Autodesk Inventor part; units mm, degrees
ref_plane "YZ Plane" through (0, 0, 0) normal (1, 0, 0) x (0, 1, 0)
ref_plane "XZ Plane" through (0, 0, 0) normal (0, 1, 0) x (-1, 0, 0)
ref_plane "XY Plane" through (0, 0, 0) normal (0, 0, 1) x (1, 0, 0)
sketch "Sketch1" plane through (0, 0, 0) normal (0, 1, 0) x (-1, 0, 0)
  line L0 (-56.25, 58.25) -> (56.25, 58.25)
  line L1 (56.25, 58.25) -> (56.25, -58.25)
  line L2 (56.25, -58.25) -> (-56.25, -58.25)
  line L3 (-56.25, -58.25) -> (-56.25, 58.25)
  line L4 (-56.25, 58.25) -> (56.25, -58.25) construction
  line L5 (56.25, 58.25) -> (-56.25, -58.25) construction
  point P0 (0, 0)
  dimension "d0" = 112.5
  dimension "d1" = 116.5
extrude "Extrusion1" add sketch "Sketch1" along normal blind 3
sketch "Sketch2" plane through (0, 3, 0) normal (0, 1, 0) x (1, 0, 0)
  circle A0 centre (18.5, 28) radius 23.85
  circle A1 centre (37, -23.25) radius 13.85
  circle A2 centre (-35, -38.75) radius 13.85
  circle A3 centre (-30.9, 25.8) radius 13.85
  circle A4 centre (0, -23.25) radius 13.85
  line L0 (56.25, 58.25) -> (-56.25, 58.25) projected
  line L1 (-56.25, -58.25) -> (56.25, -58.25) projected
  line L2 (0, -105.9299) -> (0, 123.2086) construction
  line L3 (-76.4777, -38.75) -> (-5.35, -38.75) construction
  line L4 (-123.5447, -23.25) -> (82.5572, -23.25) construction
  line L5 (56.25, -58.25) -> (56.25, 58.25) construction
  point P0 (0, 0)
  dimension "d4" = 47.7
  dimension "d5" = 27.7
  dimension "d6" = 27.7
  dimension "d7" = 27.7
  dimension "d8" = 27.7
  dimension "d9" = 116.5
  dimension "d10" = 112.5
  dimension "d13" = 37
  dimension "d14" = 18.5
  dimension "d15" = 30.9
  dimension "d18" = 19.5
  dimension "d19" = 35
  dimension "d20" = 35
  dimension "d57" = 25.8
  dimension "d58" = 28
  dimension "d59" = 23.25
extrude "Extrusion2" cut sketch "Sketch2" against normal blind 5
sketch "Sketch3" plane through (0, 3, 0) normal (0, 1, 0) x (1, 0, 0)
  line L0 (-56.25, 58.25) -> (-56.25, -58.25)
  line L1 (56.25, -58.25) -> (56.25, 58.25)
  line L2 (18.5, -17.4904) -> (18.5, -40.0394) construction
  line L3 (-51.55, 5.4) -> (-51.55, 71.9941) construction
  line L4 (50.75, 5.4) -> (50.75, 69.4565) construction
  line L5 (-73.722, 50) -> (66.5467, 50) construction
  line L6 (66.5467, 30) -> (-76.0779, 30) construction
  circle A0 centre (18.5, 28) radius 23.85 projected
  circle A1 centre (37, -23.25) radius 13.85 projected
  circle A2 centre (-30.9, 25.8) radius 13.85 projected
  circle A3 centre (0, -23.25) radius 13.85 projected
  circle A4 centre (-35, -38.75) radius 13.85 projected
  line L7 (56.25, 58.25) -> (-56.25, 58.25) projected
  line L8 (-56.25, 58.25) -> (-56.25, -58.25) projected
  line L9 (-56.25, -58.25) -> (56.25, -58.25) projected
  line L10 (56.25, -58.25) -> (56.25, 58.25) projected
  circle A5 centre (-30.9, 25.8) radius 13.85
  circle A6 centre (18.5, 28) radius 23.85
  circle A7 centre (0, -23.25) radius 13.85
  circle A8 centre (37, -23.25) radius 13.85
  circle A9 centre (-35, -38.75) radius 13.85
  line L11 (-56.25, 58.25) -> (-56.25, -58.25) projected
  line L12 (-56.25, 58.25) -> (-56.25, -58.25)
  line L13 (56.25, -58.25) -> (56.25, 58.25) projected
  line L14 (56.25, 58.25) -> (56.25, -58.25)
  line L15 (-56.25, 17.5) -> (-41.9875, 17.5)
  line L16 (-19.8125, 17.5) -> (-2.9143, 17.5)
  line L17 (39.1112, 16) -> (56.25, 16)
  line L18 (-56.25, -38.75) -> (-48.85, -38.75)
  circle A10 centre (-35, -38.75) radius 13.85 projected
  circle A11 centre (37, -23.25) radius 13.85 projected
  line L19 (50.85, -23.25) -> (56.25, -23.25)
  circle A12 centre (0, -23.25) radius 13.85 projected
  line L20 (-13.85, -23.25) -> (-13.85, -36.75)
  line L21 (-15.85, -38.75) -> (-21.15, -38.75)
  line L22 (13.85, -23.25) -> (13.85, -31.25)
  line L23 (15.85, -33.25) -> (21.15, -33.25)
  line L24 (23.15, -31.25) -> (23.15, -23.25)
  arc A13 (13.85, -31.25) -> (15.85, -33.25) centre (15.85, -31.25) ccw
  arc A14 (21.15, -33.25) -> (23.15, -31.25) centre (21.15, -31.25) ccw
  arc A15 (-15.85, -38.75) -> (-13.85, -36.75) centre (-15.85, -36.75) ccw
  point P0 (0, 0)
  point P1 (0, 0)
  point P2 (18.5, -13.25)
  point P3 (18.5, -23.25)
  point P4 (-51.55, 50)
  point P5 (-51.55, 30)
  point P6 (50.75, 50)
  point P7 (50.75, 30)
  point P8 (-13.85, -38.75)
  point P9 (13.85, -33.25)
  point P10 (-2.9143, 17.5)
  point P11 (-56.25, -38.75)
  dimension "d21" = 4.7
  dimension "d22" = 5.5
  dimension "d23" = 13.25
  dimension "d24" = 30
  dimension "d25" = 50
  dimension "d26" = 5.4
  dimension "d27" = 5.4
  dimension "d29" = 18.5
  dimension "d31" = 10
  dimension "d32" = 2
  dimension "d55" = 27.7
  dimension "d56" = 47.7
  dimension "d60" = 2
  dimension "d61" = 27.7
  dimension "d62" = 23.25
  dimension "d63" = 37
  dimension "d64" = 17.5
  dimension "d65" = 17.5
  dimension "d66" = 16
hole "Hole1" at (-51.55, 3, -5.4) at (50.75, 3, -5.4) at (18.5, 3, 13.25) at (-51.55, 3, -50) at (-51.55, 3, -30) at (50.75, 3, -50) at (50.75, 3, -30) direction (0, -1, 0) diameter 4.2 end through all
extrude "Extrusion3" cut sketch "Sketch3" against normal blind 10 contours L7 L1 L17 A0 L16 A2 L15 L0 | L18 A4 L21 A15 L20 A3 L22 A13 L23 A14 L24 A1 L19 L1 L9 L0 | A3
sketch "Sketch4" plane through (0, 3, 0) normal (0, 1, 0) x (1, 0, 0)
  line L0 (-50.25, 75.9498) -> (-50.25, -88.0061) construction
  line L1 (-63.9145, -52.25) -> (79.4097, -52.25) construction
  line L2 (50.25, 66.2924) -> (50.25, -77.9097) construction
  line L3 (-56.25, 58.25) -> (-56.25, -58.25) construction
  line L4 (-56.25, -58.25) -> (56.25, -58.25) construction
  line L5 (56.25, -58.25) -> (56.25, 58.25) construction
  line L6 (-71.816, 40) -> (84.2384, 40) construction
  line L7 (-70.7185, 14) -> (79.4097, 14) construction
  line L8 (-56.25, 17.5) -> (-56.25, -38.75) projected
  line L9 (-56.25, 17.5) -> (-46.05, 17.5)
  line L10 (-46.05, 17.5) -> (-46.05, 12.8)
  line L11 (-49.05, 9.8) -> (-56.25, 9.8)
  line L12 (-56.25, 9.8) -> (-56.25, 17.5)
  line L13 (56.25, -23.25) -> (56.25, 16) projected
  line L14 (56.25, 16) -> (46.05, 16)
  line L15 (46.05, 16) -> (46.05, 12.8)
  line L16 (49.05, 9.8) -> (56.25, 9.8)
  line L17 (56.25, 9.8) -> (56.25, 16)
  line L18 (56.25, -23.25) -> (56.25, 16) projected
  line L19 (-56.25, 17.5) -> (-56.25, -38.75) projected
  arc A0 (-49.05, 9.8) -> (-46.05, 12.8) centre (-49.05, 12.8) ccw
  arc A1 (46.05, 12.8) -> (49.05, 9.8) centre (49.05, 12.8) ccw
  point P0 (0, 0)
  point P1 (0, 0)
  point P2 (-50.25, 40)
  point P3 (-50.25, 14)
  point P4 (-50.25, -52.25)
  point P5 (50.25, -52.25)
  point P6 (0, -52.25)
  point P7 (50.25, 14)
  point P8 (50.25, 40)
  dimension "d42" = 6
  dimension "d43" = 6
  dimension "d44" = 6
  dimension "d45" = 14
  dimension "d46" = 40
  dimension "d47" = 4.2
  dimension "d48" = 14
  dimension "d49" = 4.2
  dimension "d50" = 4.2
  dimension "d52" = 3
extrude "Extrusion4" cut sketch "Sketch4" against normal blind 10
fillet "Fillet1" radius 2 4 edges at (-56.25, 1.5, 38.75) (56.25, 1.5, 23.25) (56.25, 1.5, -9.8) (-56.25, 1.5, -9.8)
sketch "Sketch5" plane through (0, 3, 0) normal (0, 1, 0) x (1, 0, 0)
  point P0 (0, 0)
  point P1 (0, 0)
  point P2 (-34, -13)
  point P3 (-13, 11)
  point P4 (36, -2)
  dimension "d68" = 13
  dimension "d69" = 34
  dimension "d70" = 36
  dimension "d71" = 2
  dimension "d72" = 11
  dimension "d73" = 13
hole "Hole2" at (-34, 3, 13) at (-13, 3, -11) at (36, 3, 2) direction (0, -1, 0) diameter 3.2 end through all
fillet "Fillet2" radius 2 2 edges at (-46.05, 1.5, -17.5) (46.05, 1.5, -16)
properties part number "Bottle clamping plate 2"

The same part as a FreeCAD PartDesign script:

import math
import FreeCAD as App
import Part
import Sketcher
from FreeCAD import Vector
Q = App.Units.Quantity


def edges_at(feature, points):
    """Names of the edges that pass closest to the given points."""
    edges = feature.Shape.Edges
    near = lambda p: min(range(len(edges)), key=lambda i: edges[i].distToShape(Part.Vertex(*p))[0])
    return sorted({f"Edge{near(p) + 1}" for p in points})

doc = App.newDocument("Part")
params = doc.addObject("Spreadsheet::Sheet", "Params")
for row, (alias, value) in enumerate([
    ("sketch1_width", "112.5 mm"),
    ("sketch1_height", "116.5 mm"),
    ("pad1_length", "3 mm"),
    ("sketch2_diameter", "47.7 mm"),
    ("sketch2_diameter2", "27.7 mm"),
    ("pocket1_length", "5 mm"),
    ("sketch3_diameter", "4.2 mm"),
    ("hole_diameter", "4.2 mm"),
    ("sketch4_radius", "2 mm"),
    ("sketch4_radius2", "13.85 mm"),
    ("sketch4_radius3", "23.85 mm"),
    ("sketch4_width", "5.4 mm"),
    ("sketch4_height", "35 mm"),
    ("pocket2_length", "10 mm"),
    ("sketch5_radius", "3 mm"),
    ("sketch5_width", "10.2 mm"),
    ("sketch5_height", "7.7 mm"),
    ("sketch5_height2", "6.2 mm"),
    ("pocket3_length", "10 mm"),
    ("fillet_radius", "2 mm"),
    ("sketch6_diameter", "3.2 mm"),
    ("hole2_diameter", "3.2 mm"),
    ("fillet2_radius", "2 mm"),
], start=1):
    params.set(f"A{row}", alias)
    params.set(f"B{row}", "=" + value)
    params.setAlias(f"B{row}", alias)

body = doc.addObject("PartDesign::Body", "Body")

sketch1 = body.newObject("Sketcher::SketchObject", "Sketch")
sketch1.AttachmentSupport = (doc.getObject("XZ_Plane"), [""])
sketch1.MapMode = "FlatFace"
sketch1.addGeometry([
    Part.LineSegment(Vector(-56.25, 58.25, 0), Vector(56.25, 58.25, 0)),
    Part.LineSegment(Vector(56.25, 58.25, 0), Vector(56.25, -58.25, 0)),
    Part.LineSegment(Vector(56.25, -58.25, 0), Vector(-56.25, -58.25, 0)),
    Part.LineSegment(Vector(-56.25, -58.25, 0), Vector(-56.25, 58.25, 0)),
], False)
sketch1.addConstraint([
    Sketcher.Constraint("Coincident", 0, 2, 1, 1),
    Sketcher.Constraint("Coincident", 1, 2, 2, 1),
    Sketcher.Constraint("Coincident", 2, 2, 3, 1),
    Sketcher.Constraint("Coincident", 3, 2, 0, 1),
    Sketcher.Constraint("Horizontal", 0),
    Sketcher.Constraint("Vertical", 1),
    Sketcher.Constraint("Horizontal", 2),
    Sketcher.Constraint("Vertical", 3),
    Sketcher.Constraint("Symmetric", 0, 2, 2, 2, -1, 1),
    Sketcher.Constraint("DistanceX", 0, 1, 0, 2, Q("112.5 mm")),
    Sketcher.Constraint("DistanceY", 1, 2, 1, 1, Q("116.5 mm")),
])
sketch1.setExpression("Constraints[9]", "Params.sketch1_width")
sketch1.setExpression("Constraints[10]", "Params.sketch1_height")
pad1 = body.newObject("PartDesign::Pad", "Pad")
pad1.Profile = sketch1
pad1.setExpression("Length", "Params.pad1_length")
pad1.Reversed = True

sketch2 = body.newObject("Sketcher::SketchObject", "Sketch001")
sketch2.AttachmentSupport = (doc.getObject("XZ_Plane"), [""])
sketch2.MapMode = "FlatFace"
sketch2.AttachmentOffset = App.Placement(Vector(0, 0, -3), App.Rotation())
sketch2.addGeometry([
    Part.Circle(Vector(18.5, -28, 0), Vector(0, 0, 1), 23.85),
    Part.Circle(Vector(37, 23.25, 0), Vector(0, 0, 1), 13.85),
    Part.Circle(Vector(-35, 38.75, 0), Vector(0, 0, 1), 13.85),
    Part.Circle(Vector(-30.9, -25.8, 0), Vector(0, 0, 1), 13.85),
    Part.Circle(Vector(0, 23.25, 0), Vector(0, 0, 1), 13.85),
], False)
sketch2.addConstraint([
    Sketcher.Constraint("Equal", 1, 2),
    Sketcher.Constraint("Equal", 2, 3),
    Sketcher.Constraint("Equal", 3, 4),
    Sketcher.Constraint("PointOnObject", 4, 3, -2),
    Sketcher.Constraint("Horizontal", 1, 3, 4, 3),
    Sketcher.Constraint("Diameter", 0, Q("47.7 mm")),
    Sketcher.Constraint("Diameter", 1, Q("27.7 mm")),
    Sketcher.Constraint("DistanceY", 0, 3, -1, 1, Q("28 mm")),
    Sketcher.Constraint("DistanceX", -1, 1, 1, 3, Q("37 mm")),
    Sketcher.Constraint("DistanceX", 2, 3, -1, 1, Q("35 mm")),
    Sketcher.Constraint("DistanceX", -1, 1, 0, 3, Q("18.5 mm")),
    Sketcher.Constraint("DistanceX", 3, 3, -1, 1, Q("30.9 mm")),
    Sketcher.Constraint("DistanceY", 3, 3, -1, 1, Q("25.8 mm")),
    Sketcher.Constraint("DistanceY", -1, 1, 1, 3, Q("23.25 mm")),
    Sketcher.Constraint("DistanceY", 1, 3, 2, 3, Q("15.5 mm")),
])
sketch2.setExpression("Constraints[5]", "Params.sketch2_diameter")
sketch2.setExpression("Constraints[6]", "Params.sketch2_diameter2")
pocket1 = body.newObject("PartDesign::Pocket", "Pocket")
pocket1.Profile = sketch2
pocket1.setExpression("Length", "Params.pocket1_length")
pocket1.Reversed = True

sketch3 = body.newObject("Sketcher::SketchObject", "Sketch002")
sketch3.AttachmentSupport = (doc.getObject("XZ_Plane"), [""])
sketch3.MapMode = "FlatFace"
sketch3.AttachmentOffset = App.Placement(Vector(0, 0, -3), App.Rotation())
sketch3.addGeometry([
    Part.Circle(Vector(-51.55, -5.4, 0), Vector(0, 0, 1), 2.1),
    Part.Circle(Vector(50.75, -5.4, 0), Vector(0, 0, 1), 2.1),
    Part.Circle(Vector(18.5, 13.25, 0), Vector(0, 0, 1), 2.1),
    Part.Circle(Vector(-51.55, -50, 0), Vector(0, 0, 1), 2.1),
    Part.Circle(Vector(-51.55, -30, 0), Vector(0, 0, 1), 2.1),
    Part.Circle(Vector(50.75, -50, 0), Vector(0, 0, 1), 2.1),
    Part.Circle(Vector(50.75, -30, 0), Vector(0, 0, 1), 2.1),
], False)
sketch3.addConstraint([
    Sketcher.Constraint("Equal", 0, 1),
    Sketcher.Constraint("Equal", 1, 2),
    Sketcher.Constraint("Equal", 2, 3),
    Sketcher.Constraint("Equal", 3, 4),
    Sketcher.Constraint("Equal", 4, 5),
    Sketcher.Constraint("Equal", 5, 6),
    Sketcher.Constraint("Horizontal", 0, 3, 1, 3),
    Sketcher.Constraint("Horizontal", 3, 3, 5, 3),
    Sketcher.Constraint("Horizontal", 4, 3, 6, 3),
    Sketcher.Constraint("Vertical", 0, 3, 3, 3),
    Sketcher.Constraint("Vertical", 3, 3, 4, 3),
    Sketcher.Constraint("Vertical", 1, 3, 5, 3),
    Sketcher.Constraint("Vertical", 5, 3, 6, 3),
    Sketcher.Constraint("Diameter", 0, Q("4.2 mm")),
    Sketcher.Constraint("DistanceY", 3, 3, -1, 1, Q("50 mm")),
    Sketcher.Constraint("DistanceY", 4, 3, -1, 1, Q("30 mm")),
    Sketcher.Constraint("DistanceY", 0, 3, -1, 1, Q("5.4 mm")),
    Sketcher.Constraint("DistanceX", -1, 1, 2, 3, Q("18.5 mm")),
    Sketcher.Constraint("DistanceX", 0, 3, 1, 3, Q("102.3 mm")),
    Sketcher.Constraint("DistanceX", 0, 3, -1, 1, Q("51.55 mm")),
    Sketcher.Constraint("DistanceY", -1, 1, 2, 3, Q("13.25 mm")),
])
sketch3.setExpression("Constraints[13]", "Params.sketch3_diameter")
doc.recompute()
hole = body.newObject("PartDesign::Hole", "Hole")
hole.Profile = sketch3
hole.ThreadType = "None"
hole.setExpression("Diameter", "Params.hole_diameter")
hole.DepthType = "ThroughAll"
hole.Reversed = True

sketch4 = body.newObject("Sketcher::SketchObject", "Sketch003")
sketch4.AttachmentSupport = (doc.getObject("XZ_Plane"), [""])
sketch4.MapMode = "FlatFace"
sketch4.AttachmentOffset = App.Placement(Vector(0, 0, -3), App.Rotation())
sketch4.addGeometry([
    Part.LineSegment(Vector(56.25, -58.25, 0), Vector(-56.25, -58.25, 0)),
    Part.LineSegment(Vector(-56.25, -58.25, 0), Vector(-56.25, -17.5, 0)),
    Part.LineSegment(Vector(-56.25, -17.5, 0), Vector(-41.9875, -17.5, 0)),
    Part.ArcOfCircle(Part.Circle(Vector(-30.9, -25.8, 0), Vector(0, 0, 1), 13.85), math.radians(143.181813), math.radians(396.818187)),
    Part.LineSegment(Vector(-19.8125, -17.5, 0), Vector(-2.9143, -17.5, 0)),
    Part.ArcOfCircle(Part.Circle(Vector(18.5, -28, 0), Vector(0, 0, 1), 23.85), math.radians(153.88006), math.radians(390.208295)),
    Part.LineSegment(Vector(39.1112, -16, 0), Vector(56.25, -16, 0)),
    Part.LineSegment(Vector(56.25, -16, 0), Vector(56.25, -58.25, 0)),
    Part.LineSegment(Vector(-48.85, 38.75, 0), Vector(-56.25, 38.75, 0)),
    Part.LineSegment(Vector(-56.25, 38.75, 0), Vector(-56.25, 58.25, 0)),
    Part.LineSegment(Vector(-56.25, 58.25, 0), Vector(56.25, 58.25, 0)),
    Part.LineSegment(Vector(56.25, 58.25, 0), Vector(56.25, 23.25, 0)),
    Part.LineSegment(Vector(56.25, 23.25, 0), Vector(50.85, 23.25, 0)),
    Part.ArcOfCircle(Part.Circle(Vector(37, 23.25, 0), Vector(0, 0, 1), 13.85), math.radians(0), math.radians(180)),
    Part.LineSegment(Vector(23.15, 23.25, 0), Vector(23.15, 31.25, 0)),
    Part.ArcOfCircle(Part.Circle(Vector(21.15, 31.25, 0), Vector(0, 0, 1), 2), math.radians(0), math.radians(90)),
    Part.LineSegment(Vector(21.15, 33.25, 0), Vector(15.85, 33.25, 0)),
    Part.ArcOfCircle(Part.Circle(Vector(15.85, 31.25, 0), Vector(0, 0, 1), 2), math.radians(90), math.radians(180)),
    Part.LineSegment(Vector(13.85, 31.25, 0), Vector(13.85, 23.25, 0)),
    Part.ArcOfCircle(Part.Circle(Vector(0, 23.25, 0), Vector(0, 0, 1), 13.85), math.radians(180), math.radians(360)),
    Part.LineSegment(Vector(-13.85, 23.25, 0), Vector(-13.85, 36.75, 0)),
    Part.ArcOfCircle(Part.Circle(Vector(-15.85, 36.75, 0), Vector(0, 0, 1), 2), math.radians(0), math.radians(90)),
    Part.LineSegment(Vector(-15.85, 38.75, 0), Vector(-21.15, 38.75, 0)),
    Part.ArcOfCircle(Part.Circle(Vector(-35, 38.75, 0), Vector(0, 0, 1), 13.85), math.radians(0), math.radians(180)),
], False)
sketch4.addConstraint([
    Sketcher.Constraint("Coincident", 0, 2, 1, 1),
    Sketcher.Constraint("Coincident", 1, 2, 2, 1),
    Sketcher.Constraint("Coincident", 2, 2, 3, 1),
    Sketcher.Constraint("Coincident", 3, 2, 4, 1),
    Sketcher.Constraint("Coincident", 4, 2, 5, 1),
    Sketcher.Constraint("Coincident", 5, 2, 6, 1),
    Sketcher.Constraint("Coincident", 6, 2, 7, 1),
    Sketcher.Constraint("Coincident", 7, 2, 0, 1),
    Sketcher.Constraint("Coincident", 8, 2, 9, 1),
    Sketcher.Constraint("Coincident", 9, 2, 10, 1),
    Sketcher.Constraint("Coincident", 10, 2, 11, 1),
    Sketcher.Constraint("Coincident", 11, 2, 12, 1),
    Sketcher.Constraint("Coincident", 12, 2, 13, 1),
    Sketcher.Constraint("Tangent", 13, 2, 14, 1),
    Sketcher.Constraint("Tangent", 14, 2, 15, 1),
    Sketcher.Constraint("Tangent", 15, 2, 16, 1),
    Sketcher.Constraint("Tangent", 16, 2, 17, 1),
    Sketcher.Constraint("Tangent", 17, 2, 18, 1),
    Sketcher.Constraint("Tangent", 18, 2, 19, 2),
    Sketcher.Constraint("Tangent", 19, 1, 20, 1),
    Sketcher.Constraint("Tangent", 20, 2, 21, 1),
    Sketcher.Constraint("Tangent", 21, 2, 22, 1),
    Sketcher.Constraint("Coincident", 22, 2, 23, 1),
    Sketcher.Constraint("Coincident", 23, 2, 8, 1),
    Sketcher.Constraint("Horizontal", 0),
    Sketcher.Constraint("Vertical", 1),
    Sketcher.Constraint("Horizontal", 2),
    Sketcher.Constraint("Horizontal", 4),
    Sketcher.Constraint("Horizontal", 6),
    Sketcher.Constraint("Vertical", 7),
    Sketcher.Constraint("Horizontal", 8),
    Sketcher.Constraint("Vertical", 9),
    Sketcher.Constraint("Horizontal", 10),
    Sketcher.Constraint("Vertical", 11),
    Sketcher.Constraint("Horizontal", 12),
    Sketcher.Constraint("Vertical", 14),
    Sketcher.Constraint("Horizontal", 16),
    Sketcher.Constraint("Vertical", 18),
    Sketcher.Constraint("Vertical", 20),
    Sketcher.Constraint("Horizontal", 22),
    Sketcher.Constraint("Equal", 3, 13),
    Sketcher.Constraint("Equal", 15, 17),
    Sketcher.Constraint("Equal", 13, 19),
    Sketcher.Constraint("Equal", 17, 21),
    Sketcher.Constraint("Equal", 19, 23),
    Sketcher.Constraint("Symmetric", 7, 2, 9, 2, -1, 1),
    Sketcher.Constraint("PointOnObject", 19, 3, -2),
    Sketcher.Constraint("Horizontal", 13, 3, 19, 3),
    Sketcher.Constraint("Horizontal", 2, 2, 3, 2),
    Sketcher.Constraint("Horizontal", 23, 3, 8, 2),
    Sketcher.Constraint("Horizontal", 19, 3, 11, 2),
    Sketcher.Constraint("Horizontal", 8, 2, 21, 2),
    Sketcher.Constraint("Vertical", 1, 2, 8, 2),
    Sketcher.Constraint("Vertical", 7, 2, 10, 2),
    Sketcher.Constraint("Equal", 16, 22),
    Sketcher.Constraint("Radius", 15, Q("2 mm")),
    Sketcher.Constraint("Radius", 3, Q("13.85 mm")),
    Sketcher.Constraint("Radius", 5, Q("23.85 mm")),
    Sketcher.Constraint("DistanceX", 12, 2, 12, 1, Q("5.4 mm")),
    Sketcher.Constraint("DistanceX", -1, 1, 13, 3, Q("37 mm")),
    Sketcher.Constraint("DistanceY", 5, 2, -1, 1, Q("16 mm")),
    Sketcher.Constraint("DistanceY", 13, 2, 15, 2, Q("10 mm")),
    Sketcher.Constraint("DistanceX", -1, 1, 5, 3, Q("18.5 mm")),
    Sketcher.Constraint("DistanceY", 1, 2, -1, 1, Q("17.5 mm")),
    Sketcher.Constraint("DistanceY", 17, 3, 21, 3, Q("5.5 mm")),
    Sketcher.Constraint("DistanceY", 11, 2, 11, 1, Q("35 mm")),
    Sketcher.Constraint("DistanceY", -1, 1, 13, 3, Q("23.25 mm")),
    Sketcher.Constraint("DistanceY", 5, 3, -1, 1, Q("28 mm")),
    Sketcher.Constraint("DistanceX", 3, 3, -1, 1, Q("30.9 mm")),
    Sketcher.Constraint("DistanceY", 3, 3, -1, 1, Q("25.8 mm")),
])
sketch4.setExpression("Constraints[55]", "Params.sketch4_radius")
sketch4.setExpression("Constraints[56]", "Params.sketch4_radius2")
sketch4.setExpression("Constraints[57]", "Params.sketch4_radius3")
sketch4.setExpression("Constraints[58]", "Params.sketch4_width")
sketch4.setExpression("Constraints[65]", "Params.sketch4_height")
pocket2 = body.newObject("PartDesign::Pocket", "Pocket001")
pocket2.Profile = sketch4
pocket2.setExpression("Length", "Params.pocket2_length")
pocket2.Reversed = True

sketch5 = body.newObject("Sketcher::SketchObject", "Sketch004")
sketch5.AttachmentSupport = (doc.getObject("XZ_Plane"), [""])
sketch5.MapMode = "FlatFace"
sketch5.AttachmentOffset = App.Placement(Vector(0, 0, -3), App.Rotation())
sketch5.addGeometry([
    Part.LineSegment(Vector(-46.05, -17.5, 0), Vector(-56.25, -17.5, 0)),
    Part.LineSegment(Vector(-56.25, -17.5, 0), Vector(-56.25, -9.8, 0)),
    Part.LineSegment(Vector(-56.25, -9.8, 0), Vector(-49.05, -9.8, 0)),
    Part.ArcOfCircle(Part.Circle(Vector(-49.05, -12.8, 0), Vector(0, 0, 1), 3), math.radians(0), math.radians(90)),
    Part.LineSegment(Vector(-46.05, -12.8, 0), Vector(-46.05, -17.5, 0)),
    Part.LineSegment(Vector(49.05, -9.8, 0), Vector(56.25, -9.8, 0)),
    Part.LineSegment(Vector(56.25, -9.8, 0), Vector(56.25, -16, 0)),
    Part.LineSegment(Vector(56.25, -16, 0), Vector(46.05, -16, 0)),
    Part.LineSegment(Vector(46.05, -16, 0), Vector(46.05, -12.8, 0)),
    Part.ArcOfCircle(Part.Circle(Vector(49.05, -12.8, 0), Vector(0, 0, 1), 3), math.radians(90), math.radians(180)),
], False)
sketch5.addConstraint([
    Sketcher.Constraint("Coincident", 0, 2, 1, 1),
    Sketcher.Constraint("Coincident", 1, 2, 2, 1),
    Sketcher.Constraint("Tangent", 2, 2, 3, 2),
    Sketcher.Constraint("Tangent", 3, 1, 4, 1),
    Sketcher.Constraint("Coincident", 4, 2, 0, 1),
    Sketcher.Constraint("Coincident", 5, 2, 6, 1),
    Sketcher.Constraint("Coincident", 6, 2, 7, 1),
    Sketcher.Constraint("Coincident", 7, 2, 8, 1),
    Sketcher.Constraint("Tangent", 8, 2, 9, 2),
    Sketcher.Constraint("Tangent", 9, 1, 5, 1),
    Sketcher.Constraint("Horizontal", 0),
    Sketcher.Constraint("Vertical", 1),
    Sketcher.Constraint("Horizontal", 2),
    Sketcher.Constraint("Vertical", 4),
    Sketcher.Constraint("Horizontal", 5),
    Sketcher.Constraint("Vertical", 6),
    Sketcher.Constraint("Horizontal", 7),
    Sketcher.Constraint("Vertical", 8),
    Sketcher.Constraint("Equal", 3, 9),
    Sketcher.Constraint("Symmetric", 3, 3, 9, 3, -2),
    Sketcher.Constraint("Equal", 2, 5),
    Sketcher.Constraint("Radius", 3, Q("3 mm")),
    Sketcher.Constraint("DistanceX", 0, 2, 0, 1, Q("10.2 mm")),
    Sketcher.Constraint("DistanceY", 1, 1, 1, 2, Q("7.7 mm")),
    Sketcher.Constraint("DistanceY", 6, 2, 6, 1, Q("6.2 mm")),
    Sketcher.Constraint("DistanceY", 6, 2, -1, 1, Q("16 mm")),
    Sketcher.Constraint("DistanceX", 3, 3, 9, 3, Q("98.1 mm")),
])
sketch5.setExpression("Constraints[21]", "Params.sketch5_radius")
sketch5.setExpression("Constraints[22]", "Params.sketch5_width")
sketch5.setExpression("Constraints[23]", "Params.sketch5_height")
sketch5.setExpression("Constraints[24]", "Params.sketch5_height2")
pocket3 = body.newObject("PartDesign::Pocket", "Pocket002")
pocket3.Profile = sketch5
pocket3.setExpression("Length", "Params.pocket3_length")
pocket3.Reversed = True
doc.recompute()

fillet = body.newObject("PartDesign::Fillet", "Fillet")
fillet.Base = (pocket3, edges_at(pocket3, [
    (-56.25, 1.5, 38.75),
    (56.25, 1.5, 23.25),
    (56.25, 1.5, -9.8),
    (-56.25, 1.5, -9.8),
]))
fillet.setExpression("Radius", "Params.fillet_radius")

sketch6 = body.newObject("Sketcher::SketchObject", "Sketch005")
sketch6.AttachmentSupport = (doc.getObject("XZ_Plane"), [""])
sketch6.MapMode = "FlatFace"
sketch6.AttachmentOffset = App.Placement(Vector(0, 0, -3), App.Rotation())
sketch6.addGeometry([
    Part.Circle(Vector(-34, 13, 0), Vector(0, 0, 1), 1.6),
    Part.Circle(Vector(-13, -11, 0), Vector(0, 0, 1), 1.6),
    Part.Circle(Vector(36, 2, 0), Vector(0, 0, 1), 1.6),
], False)
sketch6.addConstraint([
    Sketcher.Constraint("Equal", 0, 1),
    Sketcher.Constraint("Equal", 1, 2),
    Sketcher.Constraint("Diameter", 0, Q("3.2 mm")),
    Sketcher.Constraint("DistanceX", 0, 3, -1, 1, Q("34 mm")),
    Sketcher.Constraint("DistanceY", -1, 1, 0, 3, Q("13 mm")),
    Sketcher.Constraint("DistanceX", 1, 3, -1, 1, Q("13 mm")),
    Sketcher.Constraint("DistanceY", 1, 3, -1, 1, Q("11 mm")),
    Sketcher.Constraint("DistanceX", -1, 1, 2, 3, Q("36 mm")),
    Sketcher.Constraint("DistanceY", -1, 1, 2, 3, Q("2 mm")),
])
sketch6.setExpression("Constraints[2]", "Params.sketch6_diameter")
doc.recompute()
hole2 = body.newObject("PartDesign::Hole", "Hole001")
hole2.Profile = sketch6
hole2.ThreadType = "None"
hole2.setExpression("Diameter", "Params.hole2_diameter")
hole2.DepthType = "ThroughAll"
hole2.Reversed = True
doc.recompute()

fillet2 = body.newObject("PartDesign::Fillet", "Fillet001")
fillet2.Base = (hole2, edges_at(hole2, [(-46.05, 1.5, -17.5), (46.05, 1.5, -16)]))
fillet2.setExpression("Radius", "Params.fillet2_radius")

doc.recompute()
